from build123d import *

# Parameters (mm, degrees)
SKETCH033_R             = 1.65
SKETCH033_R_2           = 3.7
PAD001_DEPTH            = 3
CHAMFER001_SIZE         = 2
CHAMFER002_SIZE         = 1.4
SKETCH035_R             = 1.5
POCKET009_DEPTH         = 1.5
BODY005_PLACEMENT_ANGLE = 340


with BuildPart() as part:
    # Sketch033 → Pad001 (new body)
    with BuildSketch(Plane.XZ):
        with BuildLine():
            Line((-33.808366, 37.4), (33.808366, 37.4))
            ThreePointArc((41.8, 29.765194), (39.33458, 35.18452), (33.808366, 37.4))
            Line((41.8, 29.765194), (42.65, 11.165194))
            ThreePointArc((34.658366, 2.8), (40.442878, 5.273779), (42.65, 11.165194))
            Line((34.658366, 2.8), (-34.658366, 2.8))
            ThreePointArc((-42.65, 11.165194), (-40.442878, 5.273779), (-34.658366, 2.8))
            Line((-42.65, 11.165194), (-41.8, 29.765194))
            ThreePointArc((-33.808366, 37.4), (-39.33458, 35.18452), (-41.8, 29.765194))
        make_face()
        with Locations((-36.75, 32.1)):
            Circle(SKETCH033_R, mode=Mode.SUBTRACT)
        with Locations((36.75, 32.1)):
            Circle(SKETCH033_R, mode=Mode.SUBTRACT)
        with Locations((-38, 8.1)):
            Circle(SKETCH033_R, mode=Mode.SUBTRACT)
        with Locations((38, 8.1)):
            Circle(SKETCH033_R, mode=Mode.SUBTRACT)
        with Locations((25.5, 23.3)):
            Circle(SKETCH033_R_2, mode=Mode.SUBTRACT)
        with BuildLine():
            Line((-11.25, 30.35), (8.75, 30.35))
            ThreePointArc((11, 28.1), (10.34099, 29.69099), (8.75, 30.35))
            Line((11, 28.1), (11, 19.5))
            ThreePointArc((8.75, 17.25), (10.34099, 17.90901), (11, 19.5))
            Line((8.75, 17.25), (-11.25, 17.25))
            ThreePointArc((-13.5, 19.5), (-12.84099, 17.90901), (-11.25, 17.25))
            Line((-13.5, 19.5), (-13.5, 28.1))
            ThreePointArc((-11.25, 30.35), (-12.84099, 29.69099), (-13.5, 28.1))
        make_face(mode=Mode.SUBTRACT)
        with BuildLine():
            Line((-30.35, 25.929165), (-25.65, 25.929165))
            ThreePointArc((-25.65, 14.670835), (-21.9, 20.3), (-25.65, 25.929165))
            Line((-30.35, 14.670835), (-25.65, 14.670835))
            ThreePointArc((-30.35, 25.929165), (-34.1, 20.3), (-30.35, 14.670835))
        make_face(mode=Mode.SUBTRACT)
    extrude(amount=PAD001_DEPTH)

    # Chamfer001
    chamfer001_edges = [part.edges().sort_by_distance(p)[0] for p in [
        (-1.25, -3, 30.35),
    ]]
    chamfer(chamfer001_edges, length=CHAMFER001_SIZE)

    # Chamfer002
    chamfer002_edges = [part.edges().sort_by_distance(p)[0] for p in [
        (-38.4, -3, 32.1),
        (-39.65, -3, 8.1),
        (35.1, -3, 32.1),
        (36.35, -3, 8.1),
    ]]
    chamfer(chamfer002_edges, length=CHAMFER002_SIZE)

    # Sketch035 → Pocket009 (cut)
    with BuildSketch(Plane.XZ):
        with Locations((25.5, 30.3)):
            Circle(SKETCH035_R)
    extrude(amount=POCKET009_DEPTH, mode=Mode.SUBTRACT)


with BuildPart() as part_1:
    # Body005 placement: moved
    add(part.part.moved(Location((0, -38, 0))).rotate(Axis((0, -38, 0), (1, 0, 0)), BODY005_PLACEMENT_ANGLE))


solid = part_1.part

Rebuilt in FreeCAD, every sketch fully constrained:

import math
import FreeCAD as App
import Part
import Sketcher

V = App.Vector


def edges_at(feature, points):
    """Names of the edges that pass closest to the given points."""
    edges = feature.Shape.Edges
    near = lambda p: min(range(len(edges)), key=lambda i: edges[i].distToShape(Part.Vertex(*p))[0])
    return sorted({f"Edge{near(p) + 1}" for p in points})

doc = App.newDocument("Part")
body = doc.addObject("PartDesign::Body", "Body")

# Sketch on XZ plane
sketch1 = body.newObject("Sketcher::SketchObject", "Sketch")
sketch1.AttachmentSupport = (doc.getObject("XZ_Plane"), [""])
sketch1.MapMode = "FlatFace"
sketch1.addGeometry(Part.LineSegment(V(33.808366, 37.4, 0), V(-33.808366, 37.4, 0)), False)
sketch1.addGeometry(Part.ArcOfCircle(Part.Circle(V(-33.80834, 29.4, 0), V(0, 0, 1), 8), math.radians(90.000185), math.radians(177.383585)), False)
sketch1.addGeometry(Part.LineSegment(V(-41.8, 29.765194, 0), V(-42.65, 11.165194, 0)), False)
sketch1.addGeometry(Part.ArcOfCircle(Part.Circle(V(-34.65834, 10.8, 0), V(0, 0, 1), 8), math.radians(177.38358), math.radians(269.999813)), False)
sketch1.addGeometry(Part.LineSegment(V(-34.658366, 2.8, 0), V(34.658366, 2.8, 0)), False)
sketch1.addGeometry(Part.ArcOfCircle(Part.Circle(V(34.65834, 10.8, 0), V(0, 0, 1), 8), math.radians(-89.999813), math.radians(2.61642)), False)
sketch1.addGeometry(Part.LineSegment(V(42.65, 11.165194, 0), V(41.8, 29.765194, 0)), False)
sketch1.addGeometry(Part.ArcOfCircle(Part.Circle(V(33.80834, 29.4, 0), V(0, 0, 1), 8), math.radians(2.616415), math.radians(89.999815)), False)
sketch1.addGeometry(Part.Circle(V(38, 8.1, 0), V(0, 0, 1), 1.65), False)
sketch1.addGeometry(Part.Circle(V(-38, 8.1, 0), V(0, 0, 1), 1.65), False)
sketch1.addGeometry(Part.Circle(V(25.5, 23.3, 0), V(0, 0, 1), 3.7), False)
sketch1.addGeometry(Part.Circle(V(36.75, 32.1, 0), V(0, 0, 1), 1.65), False)
sketch1.addGeometry(Part.LineSegment(V(-11.25, 30.35, 0), V(8.75, 30.35, 0)), False)
sketch1.addGeometry(Part.ArcOfCircle(Part.Circle(V(8.749999, 28.099999, 0), V(0, 0, 1), 2.250001), math.radians(0.000022), math.radians(89.999978)), False)
sketch1.addGeometry(Part.LineSegment(V(11, 28.1, 0), V(11, 19.5, 0)), False)
sketch1.addGeometry(Part.ArcOfCircle(Part.Circle(V(8.749999, 19.500001, 0), V(0, 0, 1), 2.250001), math.radians(-89.999978), math.radians(-0.000022)), False)
sketch1.addGeometry(Part.LineSegment(V(8.75, 17.25, 0), V(-11.25, 17.25, 0)), False)
sketch1.addGeometry(Part.ArcOfCircle(Part.Circle(V(-11.249999, 19.500001, 0), V(0, 0, 1), 2.250001), math.radians(-179.999978), math.radians(-90.000022)), False)
sketch1.addGeometry(Part.LineSegment(V(-13.5, 19.5, 0), V(-13.5, 28.1, 0)), False)
sketch1.addGeometry(Part.ArcOfCircle(Part.Circle(V(-11.249999, 28.099999, 0), V(0, 0, 1), 2.250001), math.radians(90.000022), math.radians(179.999978)), False)
sketch1.addGeometry(Part.LineSegment(V(-30.35, 25.929165, 0), V(-25.65, 25.929165, 0)), False)
sketch1.addGeometry(Part.ArcOfCircle(Part.Circle(V(-28, 20.3, 0), V(0, 0, 1), 6.1), math.radians(-67.340994), math.radians(67.340994)), False)
sketch1.addGeometry(Part.LineSegment(V(-25.65, 14.670835, 0), V(-30.35, 14.670835, 0)), False)
sketch1.addGeometry(Part.ArcOfCircle(Part.Circle(V(-28, 20.3, 0), V(0, 0, 1), 6.1), math.radians(112.659006), math.radians(247.340994)), False)
sketch1.addGeometry(Part.Circle(V(-36.75, 32.1, 0), V(0, 0, 1), 1.65), False)
sketch1.addConstraint(Sketcher.Constraint("Coincident", 0, 2, 1, 1))
sketch1.addConstraint(Sketcher.Constraint("Coincident", 1, 2, 2, 1))
sketch1.addConstraint(Sketcher.Constraint("Coincident", 2, 2, 3, 1))
sketch1.addConstraint(Sketcher.Constraint("Coincident", 3, 2, 4, 1))
sketch1.addConstraint(Sketcher.Constraint("Coincident", 4, 2, 5, 1))
sketch1.addConstraint(Sketcher.Constraint("Coincident", 5, 2, 6, 1))
sketch1.addConstraint(Sketcher.Constraint("Coincident", 6, 2, 7, 1))
sketch1.addConstraint(Sketcher.Constraint("Coincident", 7, 2, 0, 1))
sketch1.addConstraint(Sketcher.Constraint("Tangent", 12, 2, 13, 2))
sketch1.addConstraint(Sketcher.Constraint("Tangent", 13, 1, 14, 1))
sketch1.addConstraint(Sketcher.Constraint("Tangent", 14, 2, 15, 2))
sketch1.addConstraint(Sketcher.Constraint("Tangent", 15, 1, 16, 1))
sketch1.addConstraint(Sketcher.Constraint("Tangent", 16, 2, 17, 2))
sketch1.addConstraint(Sketcher.Constraint("Tangent", 17, 1, 18, 1))
sketch1.addConstraint(Sketcher.Constraint("Tangent", 18, 2, 19, 2))
sketch1.addConstraint(Sketcher.Constraint("Tangent", 19, 1, 12, 1))
sketch1.addConstraint(Sketcher.Constraint("Coincident", 20, 2, 21, 2))
sketch1.addConstraint(Sketcher.Constraint("Coincident", 21, 1, 22, 1))
sketch1.addConstraint(Sketcher.Constraint("Coincident", 22, 2, 23, 2))
sketch1.addConstraint(Sketcher.Constraint("Coincident", 23, 1, 20, 1))
sketch1.addConstraint(Sketcher.Constraint("Horizontal", 0))
sketch1.addConstraint(Sketcher.Constraint("Horizontal", 4))
sketch1.addConstraint(Sketcher.Constraint("Horizontal", 12))
sketch1.addConstraint(Sketcher.Constraint("Vertical", 14))
sketch1.addConstraint(Sketcher.Constraint("Horizontal", 16))
sketch1.addConstraint(Sketcher.Constraint("Vertical", 18))
sketch1.addConstraint(Sketcher.Constraint("Horizontal", 20))
sketch1.addConstraint(Sketcher.Constraint("Horizontal", 22))
sketch1.addConstraint(Sketcher.Constraint("Coincident", 23, 3, 21, 3))
sketch1.addConstraint(Sketcher.Constraint("Equal", 1, 3))
sketch1.addConstraint(Sketcher.Constraint("Equal", 3, 5))
sketch1.addConstraint(Sketcher.Constraint("Equal", 5, 7))
sketch1.addConstraint(Sketcher.Constraint("Equal", 8, 9))
sketch1.addConstraint(Sketcher.Constraint("Equal", 9, 11))
sketch1.addConstraint(Sketcher.Constraint("Equal", 13, 15))
sketch1.addConstraint(Sketcher.Constraint("Equal", 15, 17))
sketch1.addConstraint(Sketcher.Constraint("Equal", 17, 19))
sketch1.addConstraint(Sketcher.Constraint("Equal", 21, 23))
sketch1.addConstraint(Sketcher.Constraint("Equal", 11, 24))
sketch1.addConstraint(Sketcher.Constraint("Symmetric", 8, 3, 9, 3, -2))
sketch1.addConstraint(Sketcher.Constraint("Symmetric", 11, 3, 24, 3, -2))
sketch1.addConstraint(Sketcher.Constraint("Symmetric", 2, 2, 5, 2, -2))
sketch1.addConstraint(Sketcher.Constraint("Symmetric", 1, 2, 6, 2, -2))
sketch1.addConstraint(Sketcher.Constraint("Vertical", 20, 2, 21, 1))
sketch1.addConstraint(Sketcher.Constraint("Radius", 1, 8.0))
sketch1.addConstraint(Sketcher.Constraint("Diameter", 8, 3.3))
sketch1.addConstraint(Sketcher.Constraint("Diameter", 10, 7.4))
sketch1.addConstraint(Sketcher.Constraint("Radius", 21, 6.1))
sketch1.addConstraint(Sketcher.Constraint("DistanceX", 12, 1, 12, 2, 20.0))
sketch1.addConstraint(Sketcher.Constraint("Radius", 13, 2.250001))
sketch1.addConstraint(Sketcher.Constraint("DistanceX", 20, 1, 20, 2, 4.7))
sketch1.addConstraint(Sketcher.Constraint("DistanceY", 14, 2, 14, 1, 8.6))
sketch1.addConstraint(Sketcher.Constraint("DistanceX", -1, 1, 8, 3, 38.0))
sketch1.addConstraint(Sketcher.Constraint("DistanceX", 21, 3, -1, 1, 28.0))
sketch1.addConstraint(Sketcher.Constraint("DistanceX", -1, 1, 13, 1, 11.0))
sketch1.addConstraint(Sketcher.Constraint("DistanceY", 8, 3, 11, 3, 24.0))
sketch1.addConstraint(Sketcher.Constraint("DistanceX", 13, 3, 11, 3, 28.000001))
sketch1.addConstraint(Sketcher.Constraint("DistanceY", 13, 3, 11, 3, 4.000001))
sketch1.addConstraint(Sketcher.Constraint("DistanceY", -1, 1, 1, 3, 29.4))
sketch1.addConstraint(Sketcher.Constraint("DistanceY", -1, 1, 3, 3, 10.8))
sketch1.addConstraint(Sketcher.Constraint("DistanceY", -1, 1, 8, 3, 8.1))
sketch1.addConstraint(Sketcher.Constraint("DistanceX", -1, 1, 10, 3, 25.5))
sketch1.addConstraint(Sketcher.Constraint("DistanceY", -1, 1, 10, 3, 23.3))
sketch1.addConstraint(Sketcher.Constraint("DistanceY", -1, 1, 21, 3, 20.3))
sketch1.addConstraint(Sketcher.Constraint("DistanceX", 1, 2, -1, 1, 41.8))
sketch1.addConstraint(Sketcher.Constraint("DistanceY", 2, 2, 1, 2, 18.6))
sketch1.addConstraint(Sketcher.Constraint("DistanceX", 2, 2, -1, 1, 42.65))
sketch1.addConstraint(Sketcher.Constraint("DistanceX", 0, 2, 0, 1, 67.616732))
sketch1.addConstraint(Sketcher.Constraint("DistanceX", 4, 1, 4, 2, 69.316732))
sketch1.addConstraint(Sketcher.Constraint("DistanceX", 1, 3, -1, 1, 33.80834))
sketch1.addConstraint(Sketcher.Constraint("DistanceX", 0, 2, -1, 1, 33.808366))
sketch1.addConstraint(Sketcher.Constraint("DistanceX", 3, 2, -1, 1, 34.658366))
pad1 = body.newObject("PartDesign::Pad", "Pad")
pad1.Profile = sketch1
pad1.Length = 3
doc.recompute()

chamfer = body.newObject("PartDesign::Chamfer", "Chamfer")
chamfer.Base = (pad1, edges_at(pad1, [(-1.25, -3, 30.35)]))
chamfer.Size = 2
doc.recompute()

chamfer2 = body.newObject("PartDesign::Chamfer", "Chamfer001")
chamfer2.Base = (chamfer, edges_at(chamfer, [
    (-38.4, -3, 32.1),
    (-39.65, -3, 8.1),
    (35.1, -3, 32.1),
    (36.35, -3, 8.1),
]))
chamfer2.Size = 1.4

# Sketch on XZ plane
sketch2 = body.newObject("Sketcher::SketchObject", "Sketch001")
sketch2.AttachmentSupport = (doc.getObject("XZ_Plane"), [""])
sketch2.MapMode = "FlatFace"
sketch2.addGeometry(Part.Circle(V(25.5, 30.3, 0), V(0, 0, 1), 1.5), False)
sketch2.addConstraint(Sketcher.Constraint("Diameter", 0, 3.0))
sketch2.addConstraint(Sketcher.Constraint("DistanceX", -1, 1, 0, 3, 25.5))
sketch2.addConstraint(Sketcher.Constraint("DistanceY", -1, 1, 0, 3, 30.3))
pocket1 = body.newObject("PartDesign::Pocket", "Pocket")
pocket1.Profile = sketch2
pocket1.Length = 1.5
pocket1.Reversed = True
body2 = doc.addObject("PartDesign::Body", "Body001")
doc.recompute()

body.Placement = App.Placement(V(0, -38, 0), App.Rotation(V(1, 0, 0), 340))
boolean = body2.newObject("PartDesign::Boolean", "Boolean")
boolean.Type = "Fuse"
boolean.addObjects([body])

doc.recompute()
